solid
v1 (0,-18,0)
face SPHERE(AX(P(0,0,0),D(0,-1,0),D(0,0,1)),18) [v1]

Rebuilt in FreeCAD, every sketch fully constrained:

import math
import FreeCAD as App
import Part
import Sketcher

V = App.Vector

doc = App.newDocument("Part")
body = doc.addObject("PartDesign::Body", "Body")

# Sketch on YZ plane
sketch1 = doc.addObject("Sketcher::SketchObject", "Sketch")
body.addObject(sketch1)
sketch1.AttachmentSupport = (doc.YZ_Plane, [""])
sketch1.MapMode = "FlatFace"
sketch1.addGeometry(Part.LineSegment(V(18, 0, 0), V(-18, 0, 0)), False)
sketch1.addGeometry(Part.ArcOfCircle(Part.Circle(V(0, 0, 0), V(0, 0, 1), 18), math.radians(180), math.radians(360)), False)
sketch1.addConstraint(Sketcher.Constraint("Coincident", 0, 1, 1, 2))
sketch1.addConstraint(Sketcher.Constraint("Coincident", 1, 1, 0, 2))
sketch1.addConstraint(Sketcher.Constraint("Horizontal", 0))
sketch1.addConstraint(Sketcher.Constraint("Coincident", 1, 3, -1, 1))
sketch1.addConstraint(Sketcher.Constraint("PointOnObject", 0, 1, -1))
sketch1.addConstraint(Sketcher.Constraint("Radius", 1, 18.0))
revolution = doc.addObject("PartDesign::Revolution", "Revolution")
body.addObject(revolution)
revolution.Profile = sketch1
revolution.ReferenceAxis = (sketch1, ["H_Axis"])
revolution.Angle = 360

doc.recompute()
